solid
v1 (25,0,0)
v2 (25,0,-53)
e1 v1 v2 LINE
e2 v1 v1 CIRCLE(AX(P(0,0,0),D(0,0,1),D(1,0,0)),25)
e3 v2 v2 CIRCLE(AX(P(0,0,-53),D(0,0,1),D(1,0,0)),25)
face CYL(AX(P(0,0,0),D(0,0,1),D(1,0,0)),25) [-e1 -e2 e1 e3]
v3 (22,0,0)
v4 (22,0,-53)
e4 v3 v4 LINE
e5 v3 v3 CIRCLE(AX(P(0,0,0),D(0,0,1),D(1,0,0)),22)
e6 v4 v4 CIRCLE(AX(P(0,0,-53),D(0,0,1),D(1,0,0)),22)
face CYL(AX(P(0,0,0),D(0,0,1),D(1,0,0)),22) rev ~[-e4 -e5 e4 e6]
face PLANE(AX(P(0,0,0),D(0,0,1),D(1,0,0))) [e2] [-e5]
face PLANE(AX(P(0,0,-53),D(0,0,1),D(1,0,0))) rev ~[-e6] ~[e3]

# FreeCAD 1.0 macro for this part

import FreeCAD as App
import Part
import Sketcher

doc = App.newDocument("Part")
body = doc.addObject("PartDesign::Body", "Body")

sketch1 = doc.addObject("Sketcher::SketchObject", "Sketch")
body.addObject(sketch1)
sketch1.AttachmentSupport = (doc.XY_Plane, [""])
sketch1.MapMode = "FlatFace"
sketch1.addGeometry([
    Part.Circle(App.Vector(0, 0, 0), App.Vector(0, 0, 1), 25),
    Part.Circle(App.Vector(0, 0, 0), App.Vector(0, 0, 1), 22),
], False)
sketch1.addConstraint([
    Sketcher.Constraint("Coincident", 0, 3, -1, 1),
    Sketcher.Constraint("Coincident", 1, 3, -1, 1),
    Sketcher.Constraint("Diameter", 0, 50.0),
    Sketcher.Constraint("Diameter", 1, 44.0),
])
pad1 = doc.addObject("PartDesign::Pad", "Pad")
body.addObject(pad1)
pad1.Profile = sketch1
pad1.Length = 53
pad1.Reversed = True

doc.recompute()
